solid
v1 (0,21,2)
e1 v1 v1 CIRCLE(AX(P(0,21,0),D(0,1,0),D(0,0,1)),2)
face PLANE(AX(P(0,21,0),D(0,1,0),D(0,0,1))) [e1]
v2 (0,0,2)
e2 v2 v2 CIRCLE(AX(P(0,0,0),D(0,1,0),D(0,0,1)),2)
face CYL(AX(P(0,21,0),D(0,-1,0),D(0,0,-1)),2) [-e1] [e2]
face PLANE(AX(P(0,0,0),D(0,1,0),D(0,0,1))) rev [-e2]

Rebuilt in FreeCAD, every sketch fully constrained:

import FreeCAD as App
import Part
import Sketcher

V = App.Vector

doc = App.newDocument("Part")
body = doc.addObject("PartDesign::Body", "Body")

sketch1 = doc.addObject("Sketcher::SketchObject", "Sketch")
body.addObject(sketch1)
sketch1.AttachmentSupport = (doc.XZ_Plane, [""])
sketch1.MapMode = "FlatFace"
sketch1.addGeometry(Part.Circle(V(0, 0, 0), V(0, 0, 1), 2), False)
sketch1.addConstraint(Sketcher.Constraint("Coincident", 0, 3, -1, 1))
sketch1.addConstraint(Sketcher.Constraint("Diameter", 0, 4.0))
pad1 = doc.addObject("PartDesign::Pad", "Pad")
body.addObject(pad1)
pad1.Profile = sketch1
pad1.Length = 21
pad1.Reversed = True

doc.recompute()
